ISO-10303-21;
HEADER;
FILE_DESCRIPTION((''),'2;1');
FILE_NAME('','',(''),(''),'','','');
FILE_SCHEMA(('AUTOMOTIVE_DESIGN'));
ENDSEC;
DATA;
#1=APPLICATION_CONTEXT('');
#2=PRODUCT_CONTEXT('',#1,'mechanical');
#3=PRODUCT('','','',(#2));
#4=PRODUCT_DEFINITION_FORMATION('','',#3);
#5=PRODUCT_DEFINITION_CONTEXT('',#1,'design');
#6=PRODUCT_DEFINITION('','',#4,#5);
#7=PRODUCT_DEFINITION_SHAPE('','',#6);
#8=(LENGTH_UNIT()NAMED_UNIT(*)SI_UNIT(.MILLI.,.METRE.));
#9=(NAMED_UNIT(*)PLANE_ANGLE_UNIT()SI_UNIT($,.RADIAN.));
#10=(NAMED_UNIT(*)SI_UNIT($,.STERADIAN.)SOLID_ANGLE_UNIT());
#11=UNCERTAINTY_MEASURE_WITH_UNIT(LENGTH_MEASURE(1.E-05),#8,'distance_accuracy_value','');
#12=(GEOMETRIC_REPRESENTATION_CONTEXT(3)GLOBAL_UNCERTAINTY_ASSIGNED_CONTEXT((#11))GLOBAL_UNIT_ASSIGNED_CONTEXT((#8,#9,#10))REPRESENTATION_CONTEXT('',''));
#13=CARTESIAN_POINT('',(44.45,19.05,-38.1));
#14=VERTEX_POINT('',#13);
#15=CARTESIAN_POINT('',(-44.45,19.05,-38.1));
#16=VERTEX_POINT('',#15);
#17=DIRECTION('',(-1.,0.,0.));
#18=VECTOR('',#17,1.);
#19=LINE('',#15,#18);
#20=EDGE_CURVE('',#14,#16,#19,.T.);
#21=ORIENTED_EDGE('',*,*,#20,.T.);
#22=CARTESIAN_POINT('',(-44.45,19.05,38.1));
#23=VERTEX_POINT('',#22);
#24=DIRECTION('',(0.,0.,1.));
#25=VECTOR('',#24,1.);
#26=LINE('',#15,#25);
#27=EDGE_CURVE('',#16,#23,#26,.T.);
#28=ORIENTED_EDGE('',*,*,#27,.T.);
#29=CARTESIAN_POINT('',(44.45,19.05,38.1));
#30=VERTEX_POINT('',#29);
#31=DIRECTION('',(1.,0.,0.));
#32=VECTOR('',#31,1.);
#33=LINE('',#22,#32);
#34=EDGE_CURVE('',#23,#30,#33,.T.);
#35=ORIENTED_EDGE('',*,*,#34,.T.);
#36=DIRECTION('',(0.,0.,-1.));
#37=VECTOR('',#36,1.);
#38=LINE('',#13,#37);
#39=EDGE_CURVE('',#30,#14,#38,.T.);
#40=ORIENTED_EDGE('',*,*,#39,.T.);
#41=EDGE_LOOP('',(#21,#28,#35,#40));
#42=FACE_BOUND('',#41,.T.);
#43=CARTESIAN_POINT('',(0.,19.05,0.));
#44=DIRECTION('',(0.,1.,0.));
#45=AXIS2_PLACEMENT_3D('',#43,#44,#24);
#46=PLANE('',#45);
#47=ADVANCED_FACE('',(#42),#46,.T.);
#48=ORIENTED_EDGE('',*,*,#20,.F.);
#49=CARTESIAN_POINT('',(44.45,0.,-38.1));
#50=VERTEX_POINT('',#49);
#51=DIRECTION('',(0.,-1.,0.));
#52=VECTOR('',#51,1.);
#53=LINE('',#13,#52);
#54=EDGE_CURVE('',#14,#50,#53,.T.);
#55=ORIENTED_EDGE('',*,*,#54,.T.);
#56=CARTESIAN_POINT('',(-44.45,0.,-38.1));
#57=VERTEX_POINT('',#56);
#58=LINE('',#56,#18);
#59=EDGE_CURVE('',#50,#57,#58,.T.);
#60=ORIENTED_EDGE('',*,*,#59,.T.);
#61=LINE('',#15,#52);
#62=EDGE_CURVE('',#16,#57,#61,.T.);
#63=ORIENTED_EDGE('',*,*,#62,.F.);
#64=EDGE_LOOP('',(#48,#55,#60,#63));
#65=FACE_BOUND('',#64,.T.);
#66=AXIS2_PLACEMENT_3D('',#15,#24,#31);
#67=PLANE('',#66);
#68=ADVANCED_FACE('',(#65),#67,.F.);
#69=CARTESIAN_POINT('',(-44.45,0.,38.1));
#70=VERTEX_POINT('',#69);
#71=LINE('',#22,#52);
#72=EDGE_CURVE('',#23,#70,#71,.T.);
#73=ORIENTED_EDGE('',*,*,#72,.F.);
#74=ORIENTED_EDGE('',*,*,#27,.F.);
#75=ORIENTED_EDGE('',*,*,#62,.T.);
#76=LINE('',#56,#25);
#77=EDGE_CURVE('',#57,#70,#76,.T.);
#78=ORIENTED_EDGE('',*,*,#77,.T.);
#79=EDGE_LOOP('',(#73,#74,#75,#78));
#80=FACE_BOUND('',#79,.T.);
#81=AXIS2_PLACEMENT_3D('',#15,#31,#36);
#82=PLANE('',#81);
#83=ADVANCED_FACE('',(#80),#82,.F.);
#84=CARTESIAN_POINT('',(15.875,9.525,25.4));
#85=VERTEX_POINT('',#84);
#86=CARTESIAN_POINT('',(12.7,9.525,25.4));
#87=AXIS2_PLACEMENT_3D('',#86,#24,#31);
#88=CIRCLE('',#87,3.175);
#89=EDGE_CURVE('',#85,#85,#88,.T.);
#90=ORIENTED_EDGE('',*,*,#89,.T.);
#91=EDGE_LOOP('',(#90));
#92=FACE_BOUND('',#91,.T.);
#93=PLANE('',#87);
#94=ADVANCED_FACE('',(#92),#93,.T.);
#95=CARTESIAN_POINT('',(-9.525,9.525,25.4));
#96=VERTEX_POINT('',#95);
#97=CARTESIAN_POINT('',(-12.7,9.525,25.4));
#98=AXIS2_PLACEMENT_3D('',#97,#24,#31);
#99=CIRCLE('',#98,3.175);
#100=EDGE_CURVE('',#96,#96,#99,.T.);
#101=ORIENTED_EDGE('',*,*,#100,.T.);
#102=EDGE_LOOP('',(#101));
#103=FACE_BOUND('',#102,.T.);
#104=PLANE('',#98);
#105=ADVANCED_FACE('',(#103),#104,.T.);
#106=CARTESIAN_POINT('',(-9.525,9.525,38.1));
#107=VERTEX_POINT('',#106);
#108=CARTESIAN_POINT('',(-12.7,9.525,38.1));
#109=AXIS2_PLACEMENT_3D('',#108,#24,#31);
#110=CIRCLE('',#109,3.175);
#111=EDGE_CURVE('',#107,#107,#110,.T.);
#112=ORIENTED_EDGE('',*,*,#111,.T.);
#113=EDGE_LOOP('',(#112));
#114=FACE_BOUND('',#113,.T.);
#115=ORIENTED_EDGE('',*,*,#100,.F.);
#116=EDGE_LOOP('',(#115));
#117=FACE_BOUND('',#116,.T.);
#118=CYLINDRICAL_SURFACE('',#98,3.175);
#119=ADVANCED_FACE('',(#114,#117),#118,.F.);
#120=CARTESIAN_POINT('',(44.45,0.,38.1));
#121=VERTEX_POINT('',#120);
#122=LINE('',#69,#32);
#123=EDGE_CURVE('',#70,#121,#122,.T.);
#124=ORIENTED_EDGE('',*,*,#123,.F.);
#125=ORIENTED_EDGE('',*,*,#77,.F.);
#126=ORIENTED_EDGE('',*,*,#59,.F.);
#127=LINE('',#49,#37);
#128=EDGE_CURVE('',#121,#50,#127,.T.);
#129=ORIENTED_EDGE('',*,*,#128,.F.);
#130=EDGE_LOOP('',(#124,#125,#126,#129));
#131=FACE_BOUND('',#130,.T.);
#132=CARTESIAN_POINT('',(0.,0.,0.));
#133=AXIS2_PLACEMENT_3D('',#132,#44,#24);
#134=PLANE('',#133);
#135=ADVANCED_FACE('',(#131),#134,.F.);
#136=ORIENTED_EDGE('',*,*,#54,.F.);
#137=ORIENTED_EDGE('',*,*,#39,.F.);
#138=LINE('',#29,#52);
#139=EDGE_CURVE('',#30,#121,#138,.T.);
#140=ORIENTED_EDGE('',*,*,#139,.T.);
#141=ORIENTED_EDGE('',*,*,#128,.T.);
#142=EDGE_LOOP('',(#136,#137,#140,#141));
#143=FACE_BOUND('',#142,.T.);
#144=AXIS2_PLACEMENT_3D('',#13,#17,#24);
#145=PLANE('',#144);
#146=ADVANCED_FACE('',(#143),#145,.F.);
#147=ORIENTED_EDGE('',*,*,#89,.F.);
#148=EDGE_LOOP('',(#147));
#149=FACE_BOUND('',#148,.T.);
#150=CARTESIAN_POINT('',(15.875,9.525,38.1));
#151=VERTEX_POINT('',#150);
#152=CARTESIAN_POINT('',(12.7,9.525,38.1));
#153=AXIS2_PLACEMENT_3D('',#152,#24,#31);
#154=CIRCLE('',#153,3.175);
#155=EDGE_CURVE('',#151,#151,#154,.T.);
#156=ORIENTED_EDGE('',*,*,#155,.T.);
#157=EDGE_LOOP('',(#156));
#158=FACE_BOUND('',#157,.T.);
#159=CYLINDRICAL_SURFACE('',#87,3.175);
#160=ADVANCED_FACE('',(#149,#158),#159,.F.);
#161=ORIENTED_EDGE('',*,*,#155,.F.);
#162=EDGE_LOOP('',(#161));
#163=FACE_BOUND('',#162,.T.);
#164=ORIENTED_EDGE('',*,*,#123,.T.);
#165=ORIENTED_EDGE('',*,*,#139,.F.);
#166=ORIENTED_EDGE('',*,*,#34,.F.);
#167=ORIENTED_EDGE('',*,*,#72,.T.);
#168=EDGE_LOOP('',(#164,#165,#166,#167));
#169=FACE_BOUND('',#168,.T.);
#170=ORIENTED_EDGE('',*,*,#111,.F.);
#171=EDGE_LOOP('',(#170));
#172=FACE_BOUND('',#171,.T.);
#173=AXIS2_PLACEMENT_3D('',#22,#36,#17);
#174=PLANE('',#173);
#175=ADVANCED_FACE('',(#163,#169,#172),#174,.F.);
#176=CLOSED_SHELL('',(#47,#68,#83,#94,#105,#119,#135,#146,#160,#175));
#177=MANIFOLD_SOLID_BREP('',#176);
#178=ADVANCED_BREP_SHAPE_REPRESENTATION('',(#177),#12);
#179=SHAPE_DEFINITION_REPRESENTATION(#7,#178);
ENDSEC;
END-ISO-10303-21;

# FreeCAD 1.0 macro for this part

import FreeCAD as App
import Part
import Sketcher
from FreeCAD import Vector
Q = App.Units.Quantity

doc = App.newDocument("Part")
params = doc.addObject("Spreadsheet::Sheet", "Params")
for row, (alias, value) in enumerate([
    ("sketch1_height", "3 in"),
    ("sketch1_width", "3.5 in"),
    ("pad1_length", "0.75 in"),
    ("sketch2_diameter", "0.25 in"),
    ("pocket1_length", "0.5 in"),
], start=1):
    params.set(f"A{row}", alias)
    params.set(f"B{row}", "=" + value)
    params.setAlias(f"B{row}", alias)

body = doc.addObject("PartDesign::Body", "Body")

# Sketch on XZ plane
sketch1 = body.newObject("Sketcher::SketchObject", "Sketch")
sketch1.AttachmentSupport = (doc.getObject("XZ_Plane"), [""])
sketch1.MapMode = "FlatFace"
sketch1.addGeometry(Part.LineSegment(Vector(-44, -38, 0), Vector(-44, 38, 0)), False)
sketch1.addGeometry(Part.LineSegment(Vector(-44, 38, 0), Vector(44, 38, 0)), False)
sketch1.addGeometry(Part.LineSegment(Vector(44, 38, 0), Vector(44, -38, 0)), False)
sketch1.addGeometry(Part.LineSegment(Vector(44, -38, 0), Vector(-44, -38, 0)), False)
sketch1.addConstraint(Sketcher.Constraint("Coincident", 0, 2, 1, 1))
sketch1.addConstraint(Sketcher.Constraint("Coincident", 1, 2, 2, 1))
sketch1.addConstraint(Sketcher.Constraint("Coincident", 2, 2, 3, 1))
sketch1.addConstraint(Sketcher.Constraint("Coincident", 3, 2, 0, 1))
sketch1.addConstraint(Sketcher.Constraint("Vertical", 0))
sketch1.addConstraint(Sketcher.Constraint("Horizontal", 1))
sketch1.addConstraint(Sketcher.Constraint("Vertical", 2))
sketch1.addConstraint(Sketcher.Constraint("Horizontal", 3))
sketch1.addConstraint(Sketcher.Constraint("Symmetric", 0, 2, 2, 2, -1, 1))
sketch1.addConstraint(Sketcher.Constraint("DistanceY", 0, 1, 0, 2, Q("3 in")))
sketch1.addConstraint(Sketcher.Constraint("DistanceX", 1, 1, 1, 2, Q("3.5 in")))
sketch1.setExpression("Constraints[9]", "Params.sketch1_height")
sketch1.setExpression("Constraints[10]", "Params.sketch1_width")
pad1 = body.newObject("PartDesign::Pad", "Pad")
pad1.Profile = sketch1
pad1.setExpression("Length", "Params.pad1_length")
pad1.Reversed = True

# Sketch on XY plane
sketch2 = body.newObject("Sketcher::SketchObject", "Sketch001")
sketch2.AttachmentSupport = (doc.getObject("XY_Plane"), [""])
sketch2.MapMode = "FlatFace"
sketch2.AttachmentOffset = App.Placement(Vector(0, 0, 1.5 * 25.4), App.Rotation())
sketch2.addGeometry(Part.Circle(Vector(-12.7, 9.5, 0), Vector(0, 0, 1), 3.2), False)
sketch2.addGeometry(Part.Circle(Vector(12.7, 9.5, 0), Vector(0, 0, 1), 3.2), False)
sketch2.addConstraint(Sketcher.Constraint("Equal", 0, 1))
sketch2.addConstraint(Sketcher.Constraint("Symmetric", 0, 3, 1, 3, -2))
sketch2.addConstraint(Sketcher.Constraint("Diameter", 0, Q("0.25 in")))
sketch2.addConstraint(Sketcher.Constraint("DistanceX", 0, 3, 1, 3, Q("1 in")))
sketch2.addConstraint(Sketcher.Constraint("DistanceY", -1, 1, 0, 3, Q("0.375 in")))
sketch2.setExpression("Constraints[2]", "Params.sketch2_diameter")
pocket1 = body.newObject("PartDesign::Pocket", "Pocket")
pocket1.Profile = sketch2
pocket1.setExpression("Length", "Params.pocket1_length")

doc.recompute()
